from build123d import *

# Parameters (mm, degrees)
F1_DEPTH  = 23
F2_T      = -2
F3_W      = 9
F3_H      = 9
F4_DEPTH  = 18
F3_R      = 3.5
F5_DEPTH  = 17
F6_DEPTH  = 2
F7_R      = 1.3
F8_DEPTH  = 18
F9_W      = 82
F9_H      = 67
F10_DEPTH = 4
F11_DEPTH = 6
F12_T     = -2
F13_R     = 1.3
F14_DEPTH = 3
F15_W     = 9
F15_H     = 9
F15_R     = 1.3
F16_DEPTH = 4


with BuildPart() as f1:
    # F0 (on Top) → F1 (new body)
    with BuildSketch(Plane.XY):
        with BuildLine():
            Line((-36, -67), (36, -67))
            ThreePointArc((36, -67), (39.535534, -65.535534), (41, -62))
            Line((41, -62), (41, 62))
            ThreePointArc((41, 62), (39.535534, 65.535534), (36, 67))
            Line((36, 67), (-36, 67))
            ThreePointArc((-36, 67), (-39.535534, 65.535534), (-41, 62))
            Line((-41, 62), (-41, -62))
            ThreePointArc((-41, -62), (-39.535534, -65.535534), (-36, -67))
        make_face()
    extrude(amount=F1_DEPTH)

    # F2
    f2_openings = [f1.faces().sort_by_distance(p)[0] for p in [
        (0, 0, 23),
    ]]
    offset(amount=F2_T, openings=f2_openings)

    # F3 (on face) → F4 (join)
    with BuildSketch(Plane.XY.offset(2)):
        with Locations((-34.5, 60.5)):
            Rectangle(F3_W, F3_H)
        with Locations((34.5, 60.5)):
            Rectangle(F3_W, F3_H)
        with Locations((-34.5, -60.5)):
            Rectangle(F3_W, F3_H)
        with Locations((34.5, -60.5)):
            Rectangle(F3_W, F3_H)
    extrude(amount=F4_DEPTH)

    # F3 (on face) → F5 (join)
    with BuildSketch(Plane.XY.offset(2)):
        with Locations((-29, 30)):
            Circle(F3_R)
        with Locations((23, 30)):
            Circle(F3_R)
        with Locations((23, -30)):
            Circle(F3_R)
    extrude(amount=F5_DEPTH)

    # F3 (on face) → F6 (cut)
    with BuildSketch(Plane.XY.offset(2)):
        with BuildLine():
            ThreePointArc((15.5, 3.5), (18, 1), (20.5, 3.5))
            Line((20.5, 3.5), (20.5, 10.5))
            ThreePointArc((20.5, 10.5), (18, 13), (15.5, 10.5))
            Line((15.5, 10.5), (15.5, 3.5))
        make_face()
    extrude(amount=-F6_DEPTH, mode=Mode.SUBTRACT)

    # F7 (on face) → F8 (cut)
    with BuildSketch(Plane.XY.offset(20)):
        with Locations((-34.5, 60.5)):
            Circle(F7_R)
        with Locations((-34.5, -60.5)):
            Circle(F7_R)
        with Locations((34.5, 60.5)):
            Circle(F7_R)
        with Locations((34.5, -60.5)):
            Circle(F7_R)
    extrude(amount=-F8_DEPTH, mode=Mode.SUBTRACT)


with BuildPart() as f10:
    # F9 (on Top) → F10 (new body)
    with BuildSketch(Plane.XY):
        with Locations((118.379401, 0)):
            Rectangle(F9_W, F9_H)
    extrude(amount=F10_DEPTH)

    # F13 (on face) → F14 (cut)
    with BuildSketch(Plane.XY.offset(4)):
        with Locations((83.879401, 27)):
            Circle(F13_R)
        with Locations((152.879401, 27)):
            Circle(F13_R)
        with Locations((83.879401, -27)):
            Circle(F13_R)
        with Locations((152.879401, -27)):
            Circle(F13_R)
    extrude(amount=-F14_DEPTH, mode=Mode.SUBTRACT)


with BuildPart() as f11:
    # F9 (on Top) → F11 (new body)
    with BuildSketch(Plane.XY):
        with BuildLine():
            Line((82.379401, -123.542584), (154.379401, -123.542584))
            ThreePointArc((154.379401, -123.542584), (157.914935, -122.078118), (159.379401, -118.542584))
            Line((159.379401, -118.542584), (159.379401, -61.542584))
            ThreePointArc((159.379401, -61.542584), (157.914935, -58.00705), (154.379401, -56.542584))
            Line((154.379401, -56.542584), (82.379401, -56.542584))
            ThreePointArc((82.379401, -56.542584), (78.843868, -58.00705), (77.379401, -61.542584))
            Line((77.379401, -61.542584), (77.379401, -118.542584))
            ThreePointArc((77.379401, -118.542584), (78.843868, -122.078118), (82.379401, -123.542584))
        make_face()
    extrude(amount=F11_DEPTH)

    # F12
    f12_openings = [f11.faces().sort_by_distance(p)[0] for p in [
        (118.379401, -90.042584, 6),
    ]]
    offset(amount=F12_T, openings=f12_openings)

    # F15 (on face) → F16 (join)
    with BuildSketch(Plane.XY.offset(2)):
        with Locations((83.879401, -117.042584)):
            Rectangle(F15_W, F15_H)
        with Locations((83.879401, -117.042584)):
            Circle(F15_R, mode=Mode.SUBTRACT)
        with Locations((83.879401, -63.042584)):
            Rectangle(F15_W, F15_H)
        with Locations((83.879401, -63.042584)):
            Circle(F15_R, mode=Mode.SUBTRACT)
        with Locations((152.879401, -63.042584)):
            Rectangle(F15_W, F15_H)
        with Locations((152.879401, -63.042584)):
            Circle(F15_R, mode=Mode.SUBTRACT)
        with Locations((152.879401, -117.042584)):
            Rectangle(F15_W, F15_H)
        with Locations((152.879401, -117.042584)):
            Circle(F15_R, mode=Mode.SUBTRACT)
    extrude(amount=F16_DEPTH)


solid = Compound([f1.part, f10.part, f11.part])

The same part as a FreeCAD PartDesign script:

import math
import FreeCAD as App
import Part
import Sketcher

V = App.Vector


def faces_at(feature, points):
    """Names of the faces that lie closest to the given points."""
    faces = feature.Shape.Faces
    near = lambda p: min(range(len(faces)), key=lambda i: faces[i].distToShape(Part.Vertex(*p))[0])
    return sorted({f"Face{near(p) + 1}" for p in points})


def add_polygon(sketch, points):
    """Adds a closed chain of lines whose ends are joined by coincident constraints."""
    first, n = sketch.GeometryCount, len(points)
    for a, b in zip(points, points[1:] + points[:1]):
        sketch.addGeometry(Part.LineSegment(App.Vector(*a, 0), App.Vector(*b, 0)), False)
    for i in range(n):
        sketch.addConstraint(Sketcher.Constraint("Coincident", first + i, 2, first + (i + 1) % n, 1))

doc = App.newDocument("Part")
params = doc.addObject("Spreadsheet::Sheet", "Params")
for row, (alias, value) in enumerate([
    ("sketch1_radius", "5 mm"),
    ("sketch1_width", "72 mm"),
    ("sketch1_height", "124 mm"),
    ("pad1_length", "23 mm"),
    ("thickness_wall", "2 mm"),
    ("sketch2_width", "9 mm"),
    ("pad2_length", "18 mm"),
    ("sketch3_diameter", "7 mm"),
    ("pad3_length", "17 mm"),
    ("sketch4_radius", "2.5 mm"),
    ("sketch4_height", "7 mm"),
    ("pocket1_length", "2 mm"),
    ("sketch5_diameter", "2.6 mm"),
    ("pocket2_length", "18 mm"),
    ("sketch6_width", "82 mm"),
    ("sketch6_height", "67 mm"),
    ("pad4_length", "4 mm"),
    ("sketch7_diameter", "2.6 mm"),
    ("pocket3_length", "3 mm"),
    ("sketch8_radius", "5 mm"),
    ("sketch8_width", "72 mm"),
    ("sketch8_height", "57 mm"),
    ("pad5_length", "6 mm"),
    ("thickness2_wall", "2 mm"),
    ("sketch9_diameter", "2.6 mm"),
    ("sketch9_width", "9 mm"),
    ("pad6_length", "4 mm"),
], start=1):
    params.set(f"A{row}", alias)
    params.set(f"B{row}", "=" + value)
    params.setAlias(f"B{row}", alias)

body = doc.addObject("PartDesign::Body", "Body")

# Sketch on XY plane
sketch1 = body.newObject("Sketcher::SketchObject", "Sketch")
sketch1.AttachmentSupport = (doc.getObject("XY_Plane"), [""])
sketch1.MapMode = "FlatFace"
sketch1.addGeometry([
    Part.LineSegment(V(-36, -67, 0), V(36, -67, 0)),  # 0
    Part.ArcOfCircle(Part.Circle(V(36, -62, 0), V(0, 0, 1), 5), math.radians(-90), math.radians(0)),  # 1
    Part.LineSegment(V(41, -62, 0), V(41, 62, 0)),  # 2
    Part.ArcOfCircle(Part.Circle(V(36, 62, 0), V(0, 0, 1), 5), math.radians(0), math.radians(90)),  # 3
    Part.LineSegment(V(36, 67, 0), V(-36, 67, 0)),  # 4
    Part.ArcOfCircle(Part.Circle(V(-36, 62, 0), V(0, 0, 1), 5), math.radians(90), math.radians(180)),  # 5
    Part.LineSegment(V(-41, 62, 0), V(-41, -62, 0)),  # 6
    Part.ArcOfCircle(Part.Circle(V(-36, -62, 0), V(0, 0, 1), 5), math.radians(180), math.radians(270)),  # 7
], False)
sketch1.addConstraint([
    Sketcher.Constraint("Tangent", 0, 2, 1, 1),
    Sketcher.Constraint("Tangent", 1, 2, 2, 1),
    Sketcher.Constraint("Tangent", 2, 2, 3, 1),
    Sketcher.Constraint("Tangent", 3, 2, 4, 1),
    Sketcher.Constraint("Tangent", 4, 2, 5, 1),
    Sketcher.Constraint("Tangent", 5, 2, 6, 1),
    Sketcher.Constraint("Tangent", 6, 2, 7, 1),
    Sketcher.Constraint("Tangent", 7, 2, 0, 1),
    Sketcher.Constraint("Horizontal", 0),
    Sketcher.Constraint("Vertical", 2),
    Sketcher.Constraint("Horizontal", 4),
    Sketcher.Constraint("Vertical", 6),
    Sketcher.Constraint("Equal", 1, 3),
    Sketcher.Constraint("Equal", 3, 5),
    Sketcher.Constraint("Equal", 5, 7),
    Sketcher.Constraint("Symmetric", 1, 3, 5, 3, -1, 1),
    Sketcher.Constraint("Radius", 1, 5.0),
    Sketcher.Constraint("DistanceX", 0, 1, 0, 2, 72.0),
    Sketcher.Constraint("DistanceY", 2, 1, 2, 2, 124.0),
])
sketch1.setExpression("Constraints[16]", "Params.sketch1_radius")
sketch1.setExpression("Constraints[17]", "Params.sketch1_width")
sketch1.setExpression("Constraints[18]", "Params.sketch1_height")
pad1 = body.newObject("PartDesign::Pad", "Pad")
pad1.Profile = sketch1
pad1.setExpression("Length", "Params.pad1_length")
doc.recompute()

thickness = body.newObject("PartDesign::Thickness", "Thickness")
thickness.Base = (pad1, faces_at(pad1, [(0, 0, 23)]))
thickness.setExpression("Value", "Params.thickness_wall")
thickness.Reversed = True
thickness.Join = "Arc"

# Sketch on XY plane
sketch2 = body.newObject("Sketcher::SketchObject", "Sketch001")
sketch2.AttachmentSupport = (doc.getObject("XY_Plane"), [""])
sketch2.MapMode = "FlatFace"
sketch2.AttachmentOffset = App.Placement(V(0, 0, 2), App.Rotation())
add_polygon(sketch2, [(-39, 65), (-39, 56), (-30, 56), (-30, 65)])  # lines 0-3
add_polygon(sketch2, [(30, 65), (30, 56), (39, 56), (39, 65)])  # lines 4-7
add_polygon(sketch2, [(-39, -56), (-39, -65), (-30, -65), (-30, -56)])  # lines 8-11
add_polygon(sketch2, [(30, -56), (30, -65), (39, -65), (39, -56)])  # lines 12-15
sketch2.addConstraint([
    Sketcher.Constraint("Vertical", 0),
    Sketcher.Constraint("Horizontal", 1),
    Sketcher.Constraint("Vertical", 2),
    Sketcher.Constraint("Horizontal", 3),
    Sketcher.Constraint("Vertical", 4),
    Sketcher.Constraint("Horizontal", 5),
    Sketcher.Constraint("Vertical", 6),
    Sketcher.Constraint("Horizontal", 7),
    Sketcher.Constraint("Vertical", 8),
    Sketcher.Constraint("Horizontal", 9),
    Sketcher.Constraint("Vertical", 10),
    Sketcher.Constraint("Horizontal", 11),
    Sketcher.Constraint("Vertical", 12),
    Sketcher.Constraint("Horizontal", 13),
    Sketcher.Constraint("Vertical", 14),
    Sketcher.Constraint("Horizontal", 15),
    Sketcher.Constraint("Symmetric", 6, 2, 8, 2, -1, 1),
    Sketcher.Constraint("Symmetric", 4, 2, 10, 2, -1, 1),
    Sketcher.Constraint("Symmetric", 2, 2, 12, 2, -1, 1),
    Sketcher.Constraint("Symmetric", 0, 2, 14, 2, -1, 1),
    Sketcher.Constraint("Symmetric", 1, 2, 4, 2, -2),
    Sketcher.Constraint("Symmetric", 3, 2, 6, 2, -2),
    Sketcher.Constraint("Equal", 15, 0),
    Sketcher.Constraint("DistanceX", 1, 1, 1, 2, 9.0),
    Sketcher.Constraint("DistanceX", 0, 2, -1, 1, 39.0),
    Sketcher.Constraint("DistanceY", -1, 1, 0, 2, 56.0),
])
sketch2.setExpression("Constraints[39]", "Params.sketch2_width")
pad2 = body.newObject("PartDesign::Pad", "Pad001")
pad2.Profile = sketch2
pad2.setExpression("Length", "Params.pad2_length")

# Sketch on XY plane
sketch3 = body.newObject("Sketcher::SketchObject", "Sketch002")
sketch3.AttachmentSupport = (doc.getObject("XY_Plane"), [""])
sketch3.MapMode = "FlatFace"
sketch3.AttachmentOffset = App.Placement(V(0, 0, 2), App.Rotation())
sketch3.addGeometry([
    Part.Circle(V(-29, 30, 0), V(0, 0, 1), 3.5),
    Part.Circle(V(23, 30, 0), V(0, 0, 1), 3.5),
    Part.Circle(V(23, -30, 0), V(0, 0, 1), 3.5),
], False)
sketch3.addConstraint([
    Sketcher.Constraint("Equal", 0, 1),
    Sketcher.Constraint("Equal", 1, 2),
    Sketcher.Constraint("Symmetric", 1, 3, 2, 3, -1),
    Sketcher.Constraint("Horizontal", 0, 3, 1, 3),
    Sketcher.Constraint("Diameter", 0, 7.0),
    Sketcher.Constraint("DistanceX", 0, 3, -1, 1, 29.0),
    Sketcher.Constraint("DistanceY", -1, 1, 0, 3, 30.0),
    Sketcher.Constraint("DistanceX", -1, 1, 1, 3, 23.0),
])
sketch3.setExpression("Constraints[4]", "Params.sketch3_diameter")
pad3 = body.newObject("PartDesign::Pad", "Pad002")
pad3.Profile = sketch3
pad3.setExpression("Length", "Params.pad3_length")

# Sketch on XY plane
sketch4 = body.newObject("Sketcher::SketchObject", "Sketch003")
sketch4.AttachmentSupport = (doc.getObject("XY_Plane"), [""])
sketch4.MapMode = "FlatFace"
sketch4.AttachmentOffset = App.Placement(V(0, 0, 2), App.Rotation())
sketch4.addGeometry([
    Part.ArcOfCircle(Part.Circle(V(18, 3.5, 0), V(0, 0, 1), 2.5), math.radians(180), math.radians(360)),
    Part.LineSegment(V(20.5, 3.5, 0), V(20.5, 10.5, 0)),
    Part.ArcOfCircle(Part.Circle(V(18, 10.5, 0), V(0, 0, 1), 2.5), math.radians(0), math.radians(180)),
    Part.LineSegment(V(15.5, 10.5, 0), V(15.5, 3.5, 0)),
], False)
sketch4.addConstraint([
    Sketcher.Constraint("Tangent", 0, 2, 1, 1),
    Sketcher.Constraint("Tangent", 1, 2, 2, 1),
    Sketcher.Constraint("Tangent", 2, 2, 3, 1),
    Sketcher.Constraint("Tangent", 3, 2, 0, 1),
    Sketcher.Constraint("Vertical", 1),
    Sketcher.Constraint("Vertical", 3),
    Sketcher.Constraint("Radius", 0, 2.5),
    Sketcher.Constraint("DistanceY", 1, 1, 1, 2, 7.0),
    Sketcher.Constraint("DistanceX", -1, 1, 0, 3, 18.0),
    Sketcher.Constraint("DistanceY", -1, 1, 0, 3, 3.5),
])
sketch4.setExpression("Constraints[6]", "Params.sketch4_radius")
sketch4.setExpression("Constraints[7]", "Params.sketch4_height")
pocket1 = body.newObject("PartDesign::Pocket", "Pocket")
pocket1.Profile = sketch4
pocket1.setExpression("Length", "Params.pocket1_length")

# Sketch on XY plane
sketch5 = body.newObject("Sketcher::SketchObject", "Sketch004")
sketch5.AttachmentSupport = (doc.getObject("XY_Plane"), [""])
sketch5.MapMode = "FlatFace"
sketch5.AttachmentOffset = App.Placement(V(0, 0, 20), App.Rotation())
sketch5.addGeometry([
    Part.Circle(V(-34.5, 60.5, 0), V(0, 0, 1), 1.3),
    Part.Circle(V(-34.5, -60.5, 0), V(0, 0, 1), 1.3),
    Part.Circle(V(34.5, 60.5, 0), V(0, 0, 1), 1.3),
    Part.Circle(V(34.5, -60.5, 0), V(0, 0, 1), 1.3),
], False)
sketch5.addConstraint([
    Sketcher.Constraint("Equal", 0, 1),
    Sketcher.Constraint("Equal", 1, 2),
    Sketcher.Constraint("Equal", 2, 3),
    Sketcher.Constraint("Symmetric", 1, 3, 2, 3, -1, 1),
    Sketcher.Constraint("Symmetric", 0, 3, 3, 3, -1, 1),
    Sketcher.Constraint("Symmetric", 0, 3, 2, 3, -2),
    Sketcher.Constraint("Diameter", 0, 2.6),
    Sketcher.Constraint("DistanceY", 1, 3, 0, 3, 121.0),
    Sketcher.Constraint("DistanceX", 0, 3, 2, 3, 69.0),
])
sketch5.setExpression("Constraints[6]", "Params.sketch5_diameter")
pocket2 = body.newObject("PartDesign::Pocket", "Pocket001")
pocket2.Profile = sketch5
pocket2.setExpression("Length", "Params.pocket2_length")
body2 = doc.addObject("PartDesign::Body", "Body001")

# Sketch on XY plane
sketch6 = body2.newObject("Sketcher::SketchObject", "Sketch005")
sketch6.AttachmentSupport = (doc.getObject("XY_Plane001"), [""])
sketch6.MapMode = "FlatFace"
add_polygon(sketch6, [(77, 34), (77, -34), (159, -34), (159, 34)])  # lines 0-3
sketch6.addConstraint([
    Sketcher.Constraint("Vertical", 0),
    Sketcher.Constraint("Horizontal", 1),
    Sketcher.Constraint("Vertical", 2),
    Sketcher.Constraint("Horizontal", 3),
    Sketcher.Constraint("DistanceX", 1, 1, 1, 2, 82.0),
    Sketcher.Constraint("DistanceY", 0, 2, 0, 1, 67.0),
    Sketcher.Constraint("DistanceY", 0, 2, -1, 1, 33.5),
    Sketcher.Constraint("DistanceX", -1, 1, 0, 2, 77.379401),
])
sketch6.setExpression("Constraints[8]", "Params.sketch6_width")
sketch6.setExpression("Constraints[9]", "Params.sketch6_height")
pad4 = body2.newObject("PartDesign::Pad", "Pad003")
pad4.Profile = sketch6
pad4.setExpression("Length", "Params.pad4_length")

# Sketch on XY plane
sketch7 = body2.newObject("Sketcher::SketchObject", "Sketch006")
sketch7.AttachmentSupport = (doc.getObject("XY_Plane001"), [""])
sketch7.MapMode = "FlatFace"
sketch7.AttachmentOffset = App.Placement(V(0, 0, 4), App.Rotation())
sketch7.addGeometry([
    Part.Circle(V(83.9, 27, 0), V(0, 0, 1), 1.3),
    Part.Circle(V(152.9, 27, 0), V(0, 0, 1), 1.3),
    Part.Circle(V(83.9, -27, 0), V(0, 0, 1), 1.3),
    Part.Circle(V(152.9, -27, 0), V(0, 0, 1), 1.3),
], False)
sketch7.addConstraint([
    Sketcher.Constraint("Equal", 0, 1),
    Sketcher.Constraint("Equal", 1, 2),
    Sketcher.Constraint("Equal", 2, 3),
    Sketcher.Constraint("Symmetric", 0, 3, 2, 3, -1),
    Sketcher.Constraint("Symmetric", 1, 3, 3, 3, -1),
    Sketcher.Constraint("Horizontal", 0, 3, 1, 3),
    Sketcher.Constraint("Diameter", 0, 2.6),
    Sketcher.Constraint("DistanceY", -1, 1, 0, 3, 27.0),
    Sketcher.Constraint("DistanceX", 0, 3, 1, 3, 69.0),
    Sketcher.Constraint("DistanceX", -1, 1, 0, 3, 83.879401),
])
sketch7.setExpression("Constraints[6]", "Params.sketch7_diameter")
pocket3 = body2.newObject("PartDesign::Pocket", "Pocket002")
pocket3.Profile = sketch7
pocket3.setExpression("Length", "Params.pocket3_length")
body3 = doc.addObject("PartDesign::Body", "Body002")

# Sketch on XY plane
sketch8 = body3.newObject("Sketcher::SketchObject", "Sketch007")
sketch8.AttachmentSupport = (doc.getObject("XY_Plane002"), [""])
sketch8.MapMode = "FlatFace"
sketch8.addGeometry([
    Part.LineSegment(V(82.4, -123.5, 0), V(154.4, -123.5, 0)),  # 0
    Part.ArcOfCircle(Part.Circle(V(154.4, -118.5, 0), V(0, 0, 1), 5), math.radians(-90), math.radians(0)),  # 1
    Part.LineSegment(V(159.4, -118.5, 0), V(159.4, -61.5, 0)),  # 2
    Part.ArcOfCircle(Part.Circle(V(154.4, -61.5, 0), V(0, 0, 1), 5), math.radians(0), math.radians(90)),  # 3
    Part.LineSegment(V(154.4, -56.5, 0), V(82.4, -56.5, 0)),  # 4
    Part.ArcOfCircle(Part.Circle(V(82.4, -61.5, 0), V(0, 0, 1), 5), math.radians(90), math.radians(180)),  # 5
    Part.LineSegment(V(77.4, -61.5, 0), V(77.4, -118.5, 0)),  # 6
    Part.ArcOfCircle(Part.Circle(V(82.4, -118.5, 0), V(0, 0, 1), 5), math.radians(-180), math.radians(-90)),  # 7
], False)
sketch8.addConstraint([
    Sketcher.Constraint("Tangent", 0, 2, 1, 1),
    Sketcher.Constraint("Tangent", 1, 2, 2, 1),
    Sketcher.Constraint("Tangent", 2, 2, 3, 1),
    Sketcher.Constraint("Tangent", 3, 2, 4, 1),
    Sketcher.Constraint("Tangent", 4, 2, 5, 1),
    Sketcher.Constraint("Tangent", 5, 2, 6, 1),
    Sketcher.Constraint("Tangent", 6, 2, 7, 1),
    Sketcher.Constraint("Tangent", 7, 2, 0, 1),
    Sketcher.Constraint("Horizontal", 0),
    Sketcher.Constraint("Vertical", 2),
    Sketcher.Constraint("Horizontal", 4),
    Sketcher.Constraint("Vertical", 6),
    Sketcher.Constraint("Equal", 1, 3),
    Sketcher.Constraint("Equal", 3, 5),
    Sketcher.Constraint("Equal", 5, 7),
    Sketcher.Constraint("Radius", 1, 5.0),
    Sketcher.Constraint("DistanceX", 0, 1, 0, 2, 72.0),
    Sketcher.Constraint("DistanceY", 2, 1, 2, 2, 57.0),
    Sketcher.Constraint("DistanceX", -1, 1, 1, 3, 154.379401),
    Sketcher.Constraint("DistanceY", 1, 3, -1, 1, 118.542584),
])
sketch8.setExpression("Constraints[15]", "Params.sketch8_radius")
sketch8.setExpression("Constraints[16]", "Params.sketch8_width")
sketch8.setExpression("Constraints[17]", "Params.sketch8_height")
pad5 = body3.newObject("PartDesign::Pad", "Pad004")
pad5.Profile = sketch8
pad5.setExpression("Length", "Params.pad5_length")
doc.recompute()

thickness2 = body3.newObject("PartDesign::Thickness", "Thickness001")
thickness2.Base = (pad5, faces_at(pad5, [(118.379, -90.043, 6)]))
thickness2.setExpression("Value", "Params.thickness2_wall")
thickness2.Reversed = True
thickness2.Join = "Arc"

# Sketch on XY plane
sketch9 = body3.newObject("Sketcher::SketchObject", "Sketch008")
sketch9.AttachmentSupport = (doc.getObject("XY_Plane002"), [""])
sketch9.MapMode = "FlatFace"
sketch9.AttachmentOffset = App.Placement(V(0, 0, 2), App.Rotation())
add_polygon(sketch9, [(79.4, -112.5), (79.4, -121.5), (88.4, -121.5), (88.4, -112.5)])  # lines 0-3
sketch9.addGeometry(Part.Circle(V(83.9, -117, 0), V(0, 0, 1), 1.3), False)  # 4
add_polygon(sketch9, [(79.4, -58.5), (79.4, -67.5), (88.4, -67.5), (88.4, -58.5)])  # lines 5-8
sketch9.addGeometry(Part.Circle(V(83.9, -63, 0), V(0, 0, 1), 1.3), False)  # 9
add_polygon(sketch9, [(148.4, -58.5), (148.4, -67.5), (157.4, -67.5), (157.4, -58.5)])  # lines 10-13
sketch9.addGeometry(Part.Circle(V(152.9, -63, 0), V(0, 0, 1), 1.3), False)  # 14
add_polygon(sketch9, [(148.4, -112.5), (148.4, -121.5), (157.4, -121.5), (157.4, -112.5)])  # lines 15-18
sketch9.addGeometry(Part.Circle(V(152.9, -117, 0), V(0, 0, 1), 1.3), False)  # 19
sketch9.addConstraint([
    Sketcher.Constraint("Vertical", 0),
    Sketcher.Constraint("Horizontal", 1),
    Sketcher.Constraint("Vertical", 2),
    Sketcher.Constraint("Horizontal", 3),
    Sketcher.Constraint("Vertical", 5),
    Sketcher.Constraint("Horizontal", 6),
    Sketcher.Constraint("Vertical", 7),
    Sketcher.Constraint("Horizontal", 8),
    Sketcher.Constraint("Vertical", 10),
    Sketcher.Constraint("Horizontal", 11),
    Sketcher.Constraint("Vertical", 12),
    Sketcher.Constraint("Horizontal", 13),
    Sketcher.Constraint("Vertical", 15),
    Sketcher.Constraint("Horizontal", 16),
    Sketcher.Constraint("Vertical", 17),
    Sketcher.Constraint("Horizontal", 18),
    Sketcher.Constraint("Equal", 4, 9),
    Sketcher.Constraint("Equal", 9, 14),
    Sketcher.Constraint("Equal", 14, 19),
    Sketcher.Constraint("Horizontal", 9, 3, 14, 3),
    Sketcher.Constraint("Horizontal", 4, 3, 19, 3),
    Sketcher.Constraint("Horizontal", 6, 2, 10, 2),
    Sketcher.Constraint("Horizontal", 8, 2, 12, 2),
    Sketcher.Constraint("Horizontal", 1, 2, 15, 2),
    Sketcher.Constraint("Horizontal", 3, 2, 17, 2),
    Sketcher.Constraint("Vertical", 4, 3, 9, 3),
    Sketcher.Constraint("Vertical", 14, 3, 19, 3),
    Sketcher.Constraint("Vertical", 3, 2, 5, 2),
    Sketcher.Constraint("Vertical", 2, 2, 6, 2),
    Sketcher.Constraint("Vertical", 13, 2, 15, 2),
    Sketcher.Constraint("Vertical", 12, 2, 16, 2),
    Sketcher.Constraint("Equal", 8, 11),
    Sketcher.Constraint("Equal", 18, 0),
    Sketcher.Constraint("Equal", 2, 5),
    Sketcher.Constraint("Diameter", 4, 2.6),
    Sketcher.Constraint("DistanceX", 1, 1, 1, 2, 9.0),
    Sketcher.Constraint("DistanceY", 4, 3, 9, 3, 54.0),
    Sketcher.Constraint("DistanceX", 9, 3, 14, 3, 69.0),
    Sketcher.Constraint("DistanceY", 3, 2, 5, 2, 45.0),
    Sketcher.Constraint("DistanceX", 6, 2, 10, 2, 60.0),
    Sketcher.Constraint("DistanceX", 0, 2, 4, 3, 4.5),
    Sketcher.Constraint("DistanceY", 0, 2, 4, 3, 4.5),
    Sketcher.Constraint("DistanceX", -1, 1, 4, 3, 83.879401),
    Sketcher.Constraint("DistanceY", 4, 3, -1, 1, 117.042584),
])
sketch9.setExpression("Constraints[50]", "Params.sketch9_diameter")
sketch9.setExpression("Constraints[51]", "Params.sketch9_width")
pad6 = body3.newObject("PartDesign::Pad", "Pad005")
pad6.Profile = sketch9
pad6.setExpression("Length", "Params.pad6_length")

doc.recompute()
